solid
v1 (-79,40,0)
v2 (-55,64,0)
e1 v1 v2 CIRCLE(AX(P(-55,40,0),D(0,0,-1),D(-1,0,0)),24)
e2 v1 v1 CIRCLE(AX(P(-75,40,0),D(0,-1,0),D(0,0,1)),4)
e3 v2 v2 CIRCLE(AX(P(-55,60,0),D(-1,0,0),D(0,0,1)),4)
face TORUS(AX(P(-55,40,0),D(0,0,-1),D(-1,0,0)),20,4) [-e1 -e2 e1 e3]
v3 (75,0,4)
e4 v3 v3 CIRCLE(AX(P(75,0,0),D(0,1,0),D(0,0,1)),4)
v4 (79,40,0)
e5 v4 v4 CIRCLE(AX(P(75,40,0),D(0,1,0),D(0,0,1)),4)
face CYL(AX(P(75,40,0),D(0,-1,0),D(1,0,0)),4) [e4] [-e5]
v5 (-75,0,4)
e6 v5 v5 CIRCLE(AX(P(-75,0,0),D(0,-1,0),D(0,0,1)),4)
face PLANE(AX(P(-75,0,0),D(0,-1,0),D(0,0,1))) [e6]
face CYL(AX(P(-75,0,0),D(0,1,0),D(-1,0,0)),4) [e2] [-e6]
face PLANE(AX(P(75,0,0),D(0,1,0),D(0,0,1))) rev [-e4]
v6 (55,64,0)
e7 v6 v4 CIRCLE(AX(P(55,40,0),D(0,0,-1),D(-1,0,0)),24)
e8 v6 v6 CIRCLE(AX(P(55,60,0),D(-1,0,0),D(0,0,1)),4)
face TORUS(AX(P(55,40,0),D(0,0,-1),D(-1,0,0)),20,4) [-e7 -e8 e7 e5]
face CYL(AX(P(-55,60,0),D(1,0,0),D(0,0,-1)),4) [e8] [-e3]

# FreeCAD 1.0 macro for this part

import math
import FreeCAD as App
import Part
import Sketcher
from FreeCAD import Vector

doc = App.newDocument("Part")
body = doc.addObject("PartDesign::Body", "Body")

sketch1 = body.newObject("Sketcher::SketchObject", "Sketch")
sketch1.AttachmentSupport = (doc.getObject("XZ_Plane"), [""])
sketch1.MapMode = "FlatFace"
sketch1.addGeometry(Part.Circle(Vector(-75, 0, 0), Vector(0, 0, 1), 4), False)
sketch1.addConstraint(Sketcher.Constraint("PointOnObject", 0, 3, -1))
sketch1.addConstraint(Sketcher.Constraint("Diameter", 0, 8.0))
sketch1.addConstraint(Sketcher.Constraint("DistanceX", 0, 3, -1, 1, 75.0))

sketch2 = body.newObject("Sketcher::SketchObject", "Sketch001")
sketch2.AttachmentSupport = (doc.getObject("XY_Plane"), [""])
sketch2.MapMode = "FlatFace"
sketch2.addGeometry(Part.LineSegment(Vector(-75, 0, 0), Vector(-75, 40, 0)), False)
sketch2.addGeometry(Part.ArcOfCircle(Part.Circle(Vector(-55, 40, 0), Vector(0, 0, 1), 20), math.radians(90), math.radians(180)), False)
sketch2.addGeometry(Part.LineSegment(Vector(-55, 60, 0), Vector(55, 60, 0)), False)
sketch2.addGeometry(Part.ArcOfCircle(Part.Circle(Vector(55, 40, 0), Vector(0, 0, 1), 20), math.radians(0), math.radians(90)), False)
sketch2.addGeometry(Part.LineSegment(Vector(75, 40, 0), Vector(75, 0, 0)), False)
sketch2.addConstraint(Sketcher.Constraint("Tangent", 0, 2, 1, 2))
sketch2.addConstraint(Sketcher.Constraint("Tangent", 1, 1, 2, 1))
sketch2.addConstraint(Sketcher.Constraint("Tangent", 2, 2, 3, 2))
sketch2.addConstraint(Sketcher.Constraint("Tangent", 3, 1, 4, 1))
sketch2.addConstraint(Sketcher.Constraint("Vertical", 0))
sketch2.addConstraint(Sketcher.Constraint("Horizontal", 2))
sketch2.addConstraint(Sketcher.Constraint("Vertical", 4))
sketch2.addConstraint(Sketcher.Constraint("Equal", 1, 3))
sketch2.addConstraint(Sketcher.Constraint("Symmetric", 0, 1, 4, 2, -1, 1))
sketch2.addConstraint(Sketcher.Constraint("PointOnObject", 0, 1, -1))
sketch2.addConstraint(Sketcher.Constraint("Radius", 1, 20.0))
sketch2.addConstraint(Sketcher.Constraint("DistanceX", 2, 1, 2, 2, 110.0))
sketch2.addConstraint(Sketcher.Constraint("DistanceY", 0, 1, 0, 2, 40.0))
doc.recompute()

additivepipe = body.newObject("PartDesign::AdditivePipe", "AdditivePipe")
additivepipe.Profile = sketch1
additivepipe.Spine = (sketch2, ["Edge1", "Edge2", "Edge3", "Edge4", "Edge5"])

doc.recompute()
